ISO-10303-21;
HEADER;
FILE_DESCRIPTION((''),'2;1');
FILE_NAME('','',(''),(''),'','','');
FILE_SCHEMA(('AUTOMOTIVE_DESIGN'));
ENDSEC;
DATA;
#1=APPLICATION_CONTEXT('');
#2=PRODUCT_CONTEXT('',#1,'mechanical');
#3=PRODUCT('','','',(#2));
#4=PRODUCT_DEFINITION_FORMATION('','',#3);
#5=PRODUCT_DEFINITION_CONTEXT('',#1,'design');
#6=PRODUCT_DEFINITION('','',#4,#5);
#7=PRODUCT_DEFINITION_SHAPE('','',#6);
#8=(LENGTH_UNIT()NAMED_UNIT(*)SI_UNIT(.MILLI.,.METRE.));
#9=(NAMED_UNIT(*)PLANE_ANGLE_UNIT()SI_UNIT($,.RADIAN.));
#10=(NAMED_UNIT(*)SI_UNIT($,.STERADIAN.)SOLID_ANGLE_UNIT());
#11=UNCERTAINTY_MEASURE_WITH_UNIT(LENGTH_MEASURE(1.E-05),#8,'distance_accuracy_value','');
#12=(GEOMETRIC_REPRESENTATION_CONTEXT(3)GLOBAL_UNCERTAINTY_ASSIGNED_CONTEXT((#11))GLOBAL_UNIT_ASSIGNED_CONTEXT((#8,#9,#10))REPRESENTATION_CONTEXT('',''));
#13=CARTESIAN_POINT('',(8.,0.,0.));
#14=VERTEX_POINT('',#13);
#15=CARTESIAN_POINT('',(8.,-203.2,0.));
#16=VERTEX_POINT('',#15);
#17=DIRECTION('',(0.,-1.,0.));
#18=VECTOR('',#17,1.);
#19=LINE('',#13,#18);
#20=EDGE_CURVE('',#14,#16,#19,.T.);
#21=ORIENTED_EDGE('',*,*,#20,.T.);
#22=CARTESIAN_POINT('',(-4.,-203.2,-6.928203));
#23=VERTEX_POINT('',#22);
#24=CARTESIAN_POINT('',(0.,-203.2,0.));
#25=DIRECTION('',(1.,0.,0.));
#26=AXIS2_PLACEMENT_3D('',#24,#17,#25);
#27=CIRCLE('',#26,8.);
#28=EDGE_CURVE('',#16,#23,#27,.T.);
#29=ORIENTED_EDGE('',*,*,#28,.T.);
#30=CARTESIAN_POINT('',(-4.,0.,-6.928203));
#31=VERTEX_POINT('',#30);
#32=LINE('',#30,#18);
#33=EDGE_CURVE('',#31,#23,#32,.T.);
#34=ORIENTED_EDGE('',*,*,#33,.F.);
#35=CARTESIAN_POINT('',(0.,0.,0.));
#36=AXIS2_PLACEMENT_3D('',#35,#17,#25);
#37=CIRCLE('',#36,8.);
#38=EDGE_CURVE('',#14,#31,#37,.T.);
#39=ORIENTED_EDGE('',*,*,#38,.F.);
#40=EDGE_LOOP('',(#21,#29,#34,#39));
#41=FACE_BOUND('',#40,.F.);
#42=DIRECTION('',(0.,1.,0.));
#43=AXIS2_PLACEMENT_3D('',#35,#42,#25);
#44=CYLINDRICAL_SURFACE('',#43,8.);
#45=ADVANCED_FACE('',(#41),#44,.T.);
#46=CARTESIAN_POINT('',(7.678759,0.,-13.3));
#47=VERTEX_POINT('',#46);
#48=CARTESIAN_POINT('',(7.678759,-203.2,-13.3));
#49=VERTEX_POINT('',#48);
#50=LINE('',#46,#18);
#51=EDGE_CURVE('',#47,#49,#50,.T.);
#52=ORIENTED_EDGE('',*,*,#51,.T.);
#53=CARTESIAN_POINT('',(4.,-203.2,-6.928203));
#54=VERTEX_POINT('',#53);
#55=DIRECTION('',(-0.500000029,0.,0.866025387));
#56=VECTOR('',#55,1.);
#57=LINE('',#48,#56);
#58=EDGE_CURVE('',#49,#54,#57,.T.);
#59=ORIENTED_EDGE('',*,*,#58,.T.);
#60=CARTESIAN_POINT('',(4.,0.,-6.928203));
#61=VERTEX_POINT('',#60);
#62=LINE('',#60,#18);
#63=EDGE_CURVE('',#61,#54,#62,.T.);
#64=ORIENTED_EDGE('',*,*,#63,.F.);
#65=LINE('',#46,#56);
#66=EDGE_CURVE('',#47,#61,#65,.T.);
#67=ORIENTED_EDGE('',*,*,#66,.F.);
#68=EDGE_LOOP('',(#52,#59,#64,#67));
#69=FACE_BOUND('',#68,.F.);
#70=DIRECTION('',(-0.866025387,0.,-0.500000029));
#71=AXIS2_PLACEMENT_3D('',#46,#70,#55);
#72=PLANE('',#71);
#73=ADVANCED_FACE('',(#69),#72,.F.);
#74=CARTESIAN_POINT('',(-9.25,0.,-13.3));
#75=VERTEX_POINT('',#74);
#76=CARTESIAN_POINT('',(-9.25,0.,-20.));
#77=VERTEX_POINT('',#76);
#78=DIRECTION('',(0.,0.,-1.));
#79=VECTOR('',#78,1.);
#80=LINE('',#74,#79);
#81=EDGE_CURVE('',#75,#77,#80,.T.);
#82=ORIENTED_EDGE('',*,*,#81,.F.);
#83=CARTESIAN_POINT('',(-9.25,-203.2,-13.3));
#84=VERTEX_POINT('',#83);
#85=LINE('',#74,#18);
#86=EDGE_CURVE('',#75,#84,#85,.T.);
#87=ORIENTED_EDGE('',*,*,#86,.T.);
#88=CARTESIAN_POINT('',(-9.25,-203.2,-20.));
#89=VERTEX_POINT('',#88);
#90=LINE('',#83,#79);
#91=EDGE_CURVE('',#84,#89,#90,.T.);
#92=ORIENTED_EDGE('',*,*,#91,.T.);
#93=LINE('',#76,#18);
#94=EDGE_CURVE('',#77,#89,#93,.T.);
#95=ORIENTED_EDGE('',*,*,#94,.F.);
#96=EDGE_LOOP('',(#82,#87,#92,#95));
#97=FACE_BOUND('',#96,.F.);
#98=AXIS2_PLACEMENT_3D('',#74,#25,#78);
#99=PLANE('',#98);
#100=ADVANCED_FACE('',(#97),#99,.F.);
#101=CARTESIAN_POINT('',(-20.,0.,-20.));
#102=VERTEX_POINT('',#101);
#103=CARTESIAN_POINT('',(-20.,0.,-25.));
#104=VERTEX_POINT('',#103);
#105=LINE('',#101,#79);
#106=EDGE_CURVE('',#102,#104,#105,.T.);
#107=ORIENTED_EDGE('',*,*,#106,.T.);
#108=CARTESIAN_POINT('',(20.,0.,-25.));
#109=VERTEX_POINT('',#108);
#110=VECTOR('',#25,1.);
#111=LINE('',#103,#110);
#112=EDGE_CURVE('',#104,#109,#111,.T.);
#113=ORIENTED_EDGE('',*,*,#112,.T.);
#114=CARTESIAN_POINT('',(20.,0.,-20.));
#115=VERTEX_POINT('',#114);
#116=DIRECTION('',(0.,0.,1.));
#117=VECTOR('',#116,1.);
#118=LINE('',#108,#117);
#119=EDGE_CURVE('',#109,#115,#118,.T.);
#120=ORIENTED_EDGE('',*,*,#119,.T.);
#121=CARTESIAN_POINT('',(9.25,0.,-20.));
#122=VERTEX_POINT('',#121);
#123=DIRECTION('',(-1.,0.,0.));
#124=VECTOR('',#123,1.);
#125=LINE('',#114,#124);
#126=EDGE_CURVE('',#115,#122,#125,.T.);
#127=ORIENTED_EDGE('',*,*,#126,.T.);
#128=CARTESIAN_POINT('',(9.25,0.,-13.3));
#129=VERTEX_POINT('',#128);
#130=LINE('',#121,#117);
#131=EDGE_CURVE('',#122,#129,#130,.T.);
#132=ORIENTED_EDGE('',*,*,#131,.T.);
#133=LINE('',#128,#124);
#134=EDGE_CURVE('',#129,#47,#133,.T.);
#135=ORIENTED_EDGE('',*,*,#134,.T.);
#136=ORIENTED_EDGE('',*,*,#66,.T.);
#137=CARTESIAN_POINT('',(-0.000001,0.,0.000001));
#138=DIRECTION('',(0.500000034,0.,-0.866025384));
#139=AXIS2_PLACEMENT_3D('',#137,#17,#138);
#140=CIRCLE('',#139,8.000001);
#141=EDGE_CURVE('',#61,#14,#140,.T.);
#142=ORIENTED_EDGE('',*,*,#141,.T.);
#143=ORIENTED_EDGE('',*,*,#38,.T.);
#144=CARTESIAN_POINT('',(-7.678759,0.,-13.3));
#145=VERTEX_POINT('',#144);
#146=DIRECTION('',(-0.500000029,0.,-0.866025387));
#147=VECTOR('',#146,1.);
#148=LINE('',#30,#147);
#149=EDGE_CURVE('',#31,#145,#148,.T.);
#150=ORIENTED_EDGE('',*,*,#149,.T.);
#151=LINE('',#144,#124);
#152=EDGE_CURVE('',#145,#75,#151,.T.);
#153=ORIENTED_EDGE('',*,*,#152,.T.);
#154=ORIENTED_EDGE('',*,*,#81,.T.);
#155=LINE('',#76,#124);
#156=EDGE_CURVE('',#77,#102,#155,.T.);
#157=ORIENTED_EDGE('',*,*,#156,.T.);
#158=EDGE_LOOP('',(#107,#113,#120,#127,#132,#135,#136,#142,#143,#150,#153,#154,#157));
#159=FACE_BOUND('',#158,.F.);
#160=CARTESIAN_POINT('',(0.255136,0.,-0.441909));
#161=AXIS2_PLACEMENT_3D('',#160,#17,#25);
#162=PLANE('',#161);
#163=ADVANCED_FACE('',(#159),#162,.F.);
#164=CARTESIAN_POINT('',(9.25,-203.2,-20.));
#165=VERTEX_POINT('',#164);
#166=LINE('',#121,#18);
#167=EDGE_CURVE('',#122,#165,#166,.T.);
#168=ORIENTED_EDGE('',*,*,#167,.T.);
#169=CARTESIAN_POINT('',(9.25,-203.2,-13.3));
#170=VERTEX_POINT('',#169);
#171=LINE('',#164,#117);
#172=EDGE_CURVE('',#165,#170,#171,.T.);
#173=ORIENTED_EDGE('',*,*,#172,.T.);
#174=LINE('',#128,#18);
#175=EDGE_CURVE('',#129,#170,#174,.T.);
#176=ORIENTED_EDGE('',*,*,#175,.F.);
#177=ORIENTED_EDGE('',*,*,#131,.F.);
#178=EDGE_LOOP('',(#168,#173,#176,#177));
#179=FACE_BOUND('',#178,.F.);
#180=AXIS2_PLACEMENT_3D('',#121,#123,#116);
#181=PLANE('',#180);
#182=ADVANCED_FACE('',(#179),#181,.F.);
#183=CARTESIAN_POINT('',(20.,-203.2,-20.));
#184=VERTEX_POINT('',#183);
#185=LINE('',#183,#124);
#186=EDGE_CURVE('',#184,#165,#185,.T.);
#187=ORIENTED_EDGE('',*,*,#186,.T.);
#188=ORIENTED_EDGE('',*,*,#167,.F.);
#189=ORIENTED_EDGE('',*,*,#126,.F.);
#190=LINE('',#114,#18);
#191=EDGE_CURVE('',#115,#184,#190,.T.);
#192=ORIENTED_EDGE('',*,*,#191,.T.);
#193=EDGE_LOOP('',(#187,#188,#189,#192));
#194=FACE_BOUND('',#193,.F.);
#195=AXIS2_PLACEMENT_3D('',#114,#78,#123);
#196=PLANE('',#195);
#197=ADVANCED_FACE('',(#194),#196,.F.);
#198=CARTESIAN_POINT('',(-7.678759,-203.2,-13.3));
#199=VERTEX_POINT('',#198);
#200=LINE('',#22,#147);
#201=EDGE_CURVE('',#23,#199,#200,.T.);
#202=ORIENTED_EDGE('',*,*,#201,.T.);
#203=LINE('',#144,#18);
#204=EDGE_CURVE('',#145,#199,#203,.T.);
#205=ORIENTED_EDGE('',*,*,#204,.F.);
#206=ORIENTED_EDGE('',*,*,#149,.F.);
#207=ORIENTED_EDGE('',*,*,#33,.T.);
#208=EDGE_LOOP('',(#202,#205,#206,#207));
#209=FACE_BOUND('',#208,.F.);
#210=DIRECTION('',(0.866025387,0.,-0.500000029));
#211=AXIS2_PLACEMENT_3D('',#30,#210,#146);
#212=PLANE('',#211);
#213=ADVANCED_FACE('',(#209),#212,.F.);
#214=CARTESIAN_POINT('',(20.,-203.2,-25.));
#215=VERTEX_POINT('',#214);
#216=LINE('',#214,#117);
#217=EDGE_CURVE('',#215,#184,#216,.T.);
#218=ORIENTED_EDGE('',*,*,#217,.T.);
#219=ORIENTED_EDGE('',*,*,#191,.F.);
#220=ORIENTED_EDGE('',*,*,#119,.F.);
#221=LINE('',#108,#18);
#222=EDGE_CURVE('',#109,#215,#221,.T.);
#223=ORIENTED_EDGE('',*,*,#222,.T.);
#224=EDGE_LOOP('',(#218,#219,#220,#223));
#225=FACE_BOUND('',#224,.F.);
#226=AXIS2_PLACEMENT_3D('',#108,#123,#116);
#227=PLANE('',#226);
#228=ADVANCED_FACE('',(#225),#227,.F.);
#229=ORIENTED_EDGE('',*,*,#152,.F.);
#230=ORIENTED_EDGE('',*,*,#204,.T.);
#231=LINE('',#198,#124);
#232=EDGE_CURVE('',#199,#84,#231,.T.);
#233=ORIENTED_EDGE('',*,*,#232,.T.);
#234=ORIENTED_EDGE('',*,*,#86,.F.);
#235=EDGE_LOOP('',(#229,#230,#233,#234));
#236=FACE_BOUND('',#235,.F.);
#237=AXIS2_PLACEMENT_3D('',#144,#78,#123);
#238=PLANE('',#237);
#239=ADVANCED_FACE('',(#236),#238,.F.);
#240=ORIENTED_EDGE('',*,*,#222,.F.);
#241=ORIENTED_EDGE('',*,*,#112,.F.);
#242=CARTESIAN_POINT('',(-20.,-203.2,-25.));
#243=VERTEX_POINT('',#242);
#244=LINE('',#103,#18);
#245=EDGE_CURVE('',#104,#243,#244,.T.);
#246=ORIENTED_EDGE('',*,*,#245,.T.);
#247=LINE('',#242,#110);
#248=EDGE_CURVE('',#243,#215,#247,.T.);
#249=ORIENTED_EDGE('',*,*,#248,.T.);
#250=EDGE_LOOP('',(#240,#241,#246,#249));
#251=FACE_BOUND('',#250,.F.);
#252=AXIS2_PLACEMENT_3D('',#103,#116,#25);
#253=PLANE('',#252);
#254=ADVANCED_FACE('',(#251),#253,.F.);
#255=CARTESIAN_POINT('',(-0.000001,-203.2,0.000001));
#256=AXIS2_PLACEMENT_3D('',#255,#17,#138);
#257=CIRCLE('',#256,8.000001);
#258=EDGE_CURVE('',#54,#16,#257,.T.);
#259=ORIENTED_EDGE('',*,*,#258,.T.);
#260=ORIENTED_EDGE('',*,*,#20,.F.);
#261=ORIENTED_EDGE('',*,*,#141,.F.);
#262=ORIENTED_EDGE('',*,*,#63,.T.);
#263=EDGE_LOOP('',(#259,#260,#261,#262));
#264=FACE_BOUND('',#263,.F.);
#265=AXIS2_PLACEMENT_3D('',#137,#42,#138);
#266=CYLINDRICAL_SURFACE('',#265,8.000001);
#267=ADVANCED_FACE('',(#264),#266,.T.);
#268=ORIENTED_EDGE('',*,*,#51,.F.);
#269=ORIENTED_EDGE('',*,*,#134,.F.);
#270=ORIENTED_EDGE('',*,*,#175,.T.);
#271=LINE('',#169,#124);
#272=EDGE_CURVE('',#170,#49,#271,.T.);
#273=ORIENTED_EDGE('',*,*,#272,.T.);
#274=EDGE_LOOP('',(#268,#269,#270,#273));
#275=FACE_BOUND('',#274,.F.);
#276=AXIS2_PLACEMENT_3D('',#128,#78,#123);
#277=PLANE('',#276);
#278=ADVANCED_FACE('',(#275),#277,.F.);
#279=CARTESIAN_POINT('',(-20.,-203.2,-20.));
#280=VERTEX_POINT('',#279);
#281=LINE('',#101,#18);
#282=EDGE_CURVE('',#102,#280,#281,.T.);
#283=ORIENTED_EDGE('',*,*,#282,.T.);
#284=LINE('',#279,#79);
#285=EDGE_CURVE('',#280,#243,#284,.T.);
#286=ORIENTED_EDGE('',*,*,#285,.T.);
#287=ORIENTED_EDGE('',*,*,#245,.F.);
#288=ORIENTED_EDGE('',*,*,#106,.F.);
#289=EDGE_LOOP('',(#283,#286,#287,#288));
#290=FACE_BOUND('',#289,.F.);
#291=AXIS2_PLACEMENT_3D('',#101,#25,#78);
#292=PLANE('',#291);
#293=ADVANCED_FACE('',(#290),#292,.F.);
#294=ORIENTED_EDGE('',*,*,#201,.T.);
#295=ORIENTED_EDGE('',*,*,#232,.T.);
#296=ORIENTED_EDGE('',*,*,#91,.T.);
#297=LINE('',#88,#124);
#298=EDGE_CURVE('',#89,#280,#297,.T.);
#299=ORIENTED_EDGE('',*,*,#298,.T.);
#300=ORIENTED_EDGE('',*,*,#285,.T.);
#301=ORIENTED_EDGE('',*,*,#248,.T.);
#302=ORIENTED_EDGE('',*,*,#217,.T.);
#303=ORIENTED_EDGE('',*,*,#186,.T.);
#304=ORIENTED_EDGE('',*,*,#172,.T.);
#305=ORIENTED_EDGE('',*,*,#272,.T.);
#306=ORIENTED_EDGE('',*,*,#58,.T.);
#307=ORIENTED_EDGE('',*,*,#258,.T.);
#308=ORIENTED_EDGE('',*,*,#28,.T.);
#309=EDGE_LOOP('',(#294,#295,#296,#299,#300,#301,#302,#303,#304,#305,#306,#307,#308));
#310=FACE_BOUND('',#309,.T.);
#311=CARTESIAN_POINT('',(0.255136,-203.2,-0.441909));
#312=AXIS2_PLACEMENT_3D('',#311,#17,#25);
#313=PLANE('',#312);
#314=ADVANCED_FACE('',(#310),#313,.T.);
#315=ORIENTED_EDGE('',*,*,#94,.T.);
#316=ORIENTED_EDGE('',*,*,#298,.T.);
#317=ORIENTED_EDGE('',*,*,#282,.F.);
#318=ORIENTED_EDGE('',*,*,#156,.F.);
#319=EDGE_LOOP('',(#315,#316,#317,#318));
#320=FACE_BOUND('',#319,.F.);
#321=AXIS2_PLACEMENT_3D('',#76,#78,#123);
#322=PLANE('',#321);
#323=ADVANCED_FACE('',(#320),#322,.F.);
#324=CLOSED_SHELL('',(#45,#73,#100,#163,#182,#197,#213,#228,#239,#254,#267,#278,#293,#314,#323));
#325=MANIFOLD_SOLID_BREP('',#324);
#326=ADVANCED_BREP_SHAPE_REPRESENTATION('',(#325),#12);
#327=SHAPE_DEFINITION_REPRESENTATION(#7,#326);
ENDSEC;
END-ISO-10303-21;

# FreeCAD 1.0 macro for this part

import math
import FreeCAD as App
import Part
import Sketcher

V = App.Vector
Q = App.Units.Quantity

doc = App.newDocument("Part")
body = doc.addObject("PartDesign::Body", "Body")

# Sketch on XZ plane
sketch1 = body.newObject("Sketcher::SketchObject", "Sketch")
sketch1.AttachmentSupport = (doc.getObject("XZ_Plane"), [""])
sketch1.MapMode = "FlatFace"
sketch1.addGeometry([
    Part.ArcOfCircle(Part.Circle(V(-0.000001, 0.000001, 0), V(0, 0, 1), 8.000001), math.radians(-59.999998), math.radians(-0.000004)),  # 0
    Part.ArcOfCircle(Part.Circle(V(0, 0, 0), V(0, 0, 1), 8), math.radians(0), math.radians(239.999998)),  # 1
    Part.LineSegment(V(-4, -6.928203, 0), V(-7.678759, -13.3, 0)),  # 2
    Part.LineSegment(V(-7.678759, -13.3, 0), V(-9.25, -13.3, 0)),  # 3
    Part.LineSegment(V(-9.25, -13.3, 0), V(-9.25, -20, 0)),  # 4
    Part.LineSegment(V(-9.25, -20, 0), V(-20, -20, 0)),  # 5
    Part.LineSegment(V(-20, -20, 0), V(-20, -25, 0)),  # 6
    Part.LineSegment(V(-20, -25, 0), V(20, -25, 0)),  # 7
    Part.LineSegment(V(20, -25, 0), V(20, -20, 0)),  # 8
    Part.LineSegment(V(20, -20, 0), V(9.25, -20, 0)),  # 9
    Part.LineSegment(V(9.25, -20, 0), V(9.25, -13.3, 0)),  # 10
    Part.LineSegment(V(9.25, -13.3, 0), V(7.678759, -13.3, 0)),  # 11
    Part.LineSegment(V(7.678759, -13.3, 0), V(4, -6.928203, 0)),  # 12
], False)
sketch1.addConstraint([
    Sketcher.Constraint("Tangent", 0, 2, 1, 1),
    Sketcher.Constraint("Coincident", 1, 2, 2, 1),
    Sketcher.Constraint("Coincident", 2, 2, 3, 1),
    Sketcher.Constraint("Coincident", 3, 2, 4, 1),
    Sketcher.Constraint("Coincident", 4, 2, 5, 1),
    Sketcher.Constraint("Coincident", 5, 2, 6, 1),
    Sketcher.Constraint("Coincident", 6, 2, 7, 1),
    Sketcher.Constraint("Coincident", 7, 2, 8, 1),
    Sketcher.Constraint("Coincident", 8, 2, 9, 1),
    Sketcher.Constraint("Coincident", 9, 2, 10, 1),
    Sketcher.Constraint("Coincident", 10, 2, 11, 1),
    Sketcher.Constraint("Coincident", 11, 2, 12, 1),
    Sketcher.Constraint("Coincident", 12, 2, 0, 1),
    Sketcher.Constraint("Horizontal", 3),
    Sketcher.Constraint("Vertical", 4),
    Sketcher.Constraint("Horizontal", 5),
    Sketcher.Constraint("Vertical", 6),
    Sketcher.Constraint("Horizontal", 7),
    Sketcher.Constraint("Vertical", 8),
    Sketcher.Constraint("Horizontal", 9),
    Sketcher.Constraint("Vertical", 10),
    Sketcher.Constraint("Horizontal", 11),
    Sketcher.Constraint("Coincident", 0, 3, -1, 1),
    Sketcher.Constraint("Equal", 0, 1),
    Sketcher.Constraint("Symmetric", 5, 2, 8, 2, -2),
    Sketcher.Constraint("Symmetric", 3, 2, 10, 2, -2),
    Sketcher.Constraint("PointOnObject", 0, 2, -1),
    Sketcher.Constraint("Horizontal", 1, 2, 12, 2),
    Sketcher.Constraint("Equal", 3, 11),
    Sketcher.Constraint("Radius", 0, Q("8.000001 mm")),
    Sketcher.Constraint("DistanceX", 7, 1, 7, 2, Q("40 mm")),
    Sketcher.Constraint("DistanceY", 6, 2, 6, 1, Q("5 mm")),
    Sketcher.Constraint("Angle", 2, Q("-120.000002 deg")),
    Sketcher.Constraint("DistanceY", 4, 2, 4, 1, Q("6.7 mm")),
    Sketcher.Constraint("DistanceX", 1, 2, -1, 1, Q("4 mm")),
    Sketcher.Constraint("DistanceY", 4, 2, -1, 1, Q("20 mm")),
    Sketcher.Constraint("DistanceX", 5, 2, 5, 1, Q("10.75 mm")),
])
pad1 = body.newObject("PartDesign::Pad", "Pad")
pad1.Profile = sketch1
pad1.Length = 203.2

doc.recompute()
